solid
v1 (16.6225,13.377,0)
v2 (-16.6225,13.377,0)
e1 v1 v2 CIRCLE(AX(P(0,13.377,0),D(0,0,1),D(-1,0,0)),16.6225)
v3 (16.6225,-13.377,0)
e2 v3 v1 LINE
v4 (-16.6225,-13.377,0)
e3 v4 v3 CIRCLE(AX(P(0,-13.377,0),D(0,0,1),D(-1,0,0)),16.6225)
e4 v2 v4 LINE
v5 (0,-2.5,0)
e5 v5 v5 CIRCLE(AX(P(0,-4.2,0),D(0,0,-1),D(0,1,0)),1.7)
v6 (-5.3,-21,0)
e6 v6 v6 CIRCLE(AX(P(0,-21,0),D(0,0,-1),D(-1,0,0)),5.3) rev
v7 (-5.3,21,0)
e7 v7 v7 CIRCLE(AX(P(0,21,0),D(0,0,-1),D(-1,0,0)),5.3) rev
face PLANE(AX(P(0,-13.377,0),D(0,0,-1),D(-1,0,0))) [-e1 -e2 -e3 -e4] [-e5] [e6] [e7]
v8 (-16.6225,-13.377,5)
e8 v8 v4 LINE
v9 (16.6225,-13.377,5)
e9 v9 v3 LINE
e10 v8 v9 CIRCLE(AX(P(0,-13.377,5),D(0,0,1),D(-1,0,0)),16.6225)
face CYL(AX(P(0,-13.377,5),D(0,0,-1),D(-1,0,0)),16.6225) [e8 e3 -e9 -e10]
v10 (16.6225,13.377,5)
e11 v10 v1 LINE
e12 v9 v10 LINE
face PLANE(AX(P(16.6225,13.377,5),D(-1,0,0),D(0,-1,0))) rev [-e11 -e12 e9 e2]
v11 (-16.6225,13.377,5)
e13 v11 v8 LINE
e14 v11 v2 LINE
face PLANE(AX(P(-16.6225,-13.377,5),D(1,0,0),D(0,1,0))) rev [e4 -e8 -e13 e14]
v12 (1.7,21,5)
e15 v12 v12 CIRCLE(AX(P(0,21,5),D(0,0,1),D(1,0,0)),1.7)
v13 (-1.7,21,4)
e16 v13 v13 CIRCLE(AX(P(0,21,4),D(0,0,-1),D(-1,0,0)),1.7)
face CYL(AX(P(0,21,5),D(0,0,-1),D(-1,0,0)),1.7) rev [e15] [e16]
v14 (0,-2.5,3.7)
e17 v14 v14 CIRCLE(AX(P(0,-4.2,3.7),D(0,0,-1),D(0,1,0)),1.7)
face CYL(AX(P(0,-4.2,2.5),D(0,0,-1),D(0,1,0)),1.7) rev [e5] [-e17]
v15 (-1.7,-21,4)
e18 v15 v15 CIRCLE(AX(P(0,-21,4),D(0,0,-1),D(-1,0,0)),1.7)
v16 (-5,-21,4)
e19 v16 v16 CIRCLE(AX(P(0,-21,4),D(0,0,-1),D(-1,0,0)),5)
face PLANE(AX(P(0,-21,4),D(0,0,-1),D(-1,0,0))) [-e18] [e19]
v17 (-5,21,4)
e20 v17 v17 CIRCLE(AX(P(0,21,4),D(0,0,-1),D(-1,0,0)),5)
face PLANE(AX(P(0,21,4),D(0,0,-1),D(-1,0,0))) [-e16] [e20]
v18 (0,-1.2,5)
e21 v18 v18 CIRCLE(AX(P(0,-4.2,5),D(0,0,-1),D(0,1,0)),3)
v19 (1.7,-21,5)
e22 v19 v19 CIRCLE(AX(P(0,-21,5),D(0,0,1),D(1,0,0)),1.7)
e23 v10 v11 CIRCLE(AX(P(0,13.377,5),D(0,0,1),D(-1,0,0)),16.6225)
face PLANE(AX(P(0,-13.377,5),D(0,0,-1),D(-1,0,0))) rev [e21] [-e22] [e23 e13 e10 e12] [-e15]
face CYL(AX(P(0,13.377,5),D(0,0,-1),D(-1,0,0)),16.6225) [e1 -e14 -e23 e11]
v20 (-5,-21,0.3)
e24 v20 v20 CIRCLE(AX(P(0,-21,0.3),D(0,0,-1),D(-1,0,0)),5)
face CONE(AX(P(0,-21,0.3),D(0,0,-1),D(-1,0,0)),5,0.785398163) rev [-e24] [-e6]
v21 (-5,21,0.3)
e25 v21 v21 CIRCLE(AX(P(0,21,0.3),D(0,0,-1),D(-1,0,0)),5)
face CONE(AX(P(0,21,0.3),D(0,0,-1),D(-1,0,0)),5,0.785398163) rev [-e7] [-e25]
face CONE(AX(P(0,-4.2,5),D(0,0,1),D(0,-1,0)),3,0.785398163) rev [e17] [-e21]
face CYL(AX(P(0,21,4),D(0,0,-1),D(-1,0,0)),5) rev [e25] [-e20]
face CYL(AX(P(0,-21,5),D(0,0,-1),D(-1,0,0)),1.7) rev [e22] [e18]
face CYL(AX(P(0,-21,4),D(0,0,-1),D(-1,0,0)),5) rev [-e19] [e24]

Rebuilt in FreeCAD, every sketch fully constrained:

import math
import FreeCAD as App
import Part
import Sketcher
from FreeCAD import Vector
Q = App.Units.Quantity


def edges_at(feature, points):
    """Names of the edges that pass closest to the given points."""
    edges = feature.Shape.Edges
    near = lambda p: min(range(len(edges)), key=lambda i: edges[i].distToShape(Part.Vertex(*p))[0])
    return sorted({f"Edge{near(p) + 1}" for p in points})

doc = App.newDocument("Part")
body = doc.addObject("PartDesign::Body", "Body")

sketch1 = body.newObject("Sketcher::SketchObject", "Sketch")
sketch1.AttachmentSupport = (doc.getObject("XY_Plane"), [""])
sketch1.MapMode = "FlatFace"
sketch1.addGeometry([
    Part.LineSegment(Vector(-16.6, 13.4, 0), Vector(-16.6, -13.4, 0)),
    Part.ArcOfCircle(Part.Circle(Vector(0, -13.4, 0), Vector(0, 0, 1), 16.6), math.radians(180), math.radians(360)),
    Part.LineSegment(Vector(16.6, -13.4, 0), Vector(16.6, 13.4, 0)),
    Part.ArcOfCircle(Part.Circle(Vector(0, 13.4, 0), Vector(0, 0, 1), 16.6), math.radians(0), math.radians(180)),
    Part.Circle(Vector(0, -21, 0), Vector(0, 0, 1), 1.7),
    Part.Circle(Vector(0, 21, 0), Vector(0, 0, 1), 1.7),
], False)
sketch1.addConstraint([
    Sketcher.Constraint("Tangent", 0, 2, 1, 1),
    Sketcher.Constraint("Tangent", 1, 2, 2, 1),
    Sketcher.Constraint("Tangent", 2, 2, 3, 1),
    Sketcher.Constraint("Tangent", 3, 2, 0, 1),
    Sketcher.Constraint("Vertical", 0),
    Sketcher.Constraint("Vertical", 2),
    Sketcher.Constraint("Equal", 4, 5),
    Sketcher.Constraint("Symmetric", 1, 3, 3, 3, -1, 1),
    Sketcher.Constraint("Symmetric", 4, 3, 5, 3, -1, 1),
    Sketcher.Constraint("PointOnObject", 4, 3, -2),
    Sketcher.Constraint("Diameter", 4, Q("3.4 mm")),
    Sketcher.Constraint("DistanceY", 4, 3, -1, 1, Q("21 mm")),
    Sketcher.Constraint("Radius", 1, Q("16.6225 mm")),
    Sketcher.Constraint("DistanceY", 0, 2, 0, 1, Q("26.754 mm")),
])
pad1 = body.newObject("PartDesign::Pad", "Pad")
pad1.Profile = sketch1
pad1.Length = 5

sketch2 = body.newObject("Sketcher::SketchObject", "Sketch001")
sketch2.AttachmentSupport = (doc.getObject("YZ_Plane"), [""])
sketch2.MapMode = "FlatFace"
sketch2.addGeometry([
    Part.LineSegment(Vector(-4.2, 0, 0), Vector(-4.2, 5, 0)),
    Part.LineSegment(Vector(-4.2, 5, 0), Vector(-7.2, 5, 0)),
    Part.LineSegment(Vector(-7.2, 5, 0), Vector(-5.9, 3.7, 0)),
    Part.LineSegment(Vector(-5.9, 3.7, 0), Vector(-5.9, 0, 0)),
    Part.LineSegment(Vector(-5.9, 0, 0), Vector(-4.2, 0, 0)),
], False)
sketch2.addGeometry(Part.LineSegment(Vector(-4.2, 0, 0), Vector(-4.2, 5, 0)), True)
sketch2.addConstraint([
    Sketcher.Constraint("Coincident", 0, 2, 1, 1),
    Sketcher.Constraint("Coincident", 1, 2, 2, 1),
    Sketcher.Constraint("Coincident", 2, 2, 3, 1),
    Sketcher.Constraint("Coincident", 3, 2, 4, 1),
    Sketcher.Constraint("Coincident", 4, 2, 0, 1),
    Sketcher.Constraint("Vertical", 0),
    Sketcher.Constraint("Horizontal", 1),
    Sketcher.Constraint("Vertical", 3),
    Sketcher.Constraint("Horizontal", 4),
    Sketcher.Constraint("Vertical", 5),
    Sketcher.Constraint("Coincident", 5, 1, 4, 2),
    Sketcher.Constraint("PointOnObject", 3, 2, -1),
    Sketcher.Constraint("Horizontal", 1, 2, 5, 2),
    Sketcher.Constraint("DistanceX", 1, 2, 1, 1, Q("3 mm")),
    Sketcher.Constraint("DistanceY", 0, 1, 0, 2, Q("5 mm")),
    Sketcher.Constraint("Angle", 2, Q("-45 deg")),
    Sketcher.Constraint("DistanceX", 4, 1, 4, 2, Q("1.7 mm")),
    Sketcher.Constraint("DistanceX", 0, 2, -1, 1, Q("4.2 mm")),
])
groove = body.newObject("PartDesign::Groove", "Groove")
groove.Profile = sketch2
groove.ReferenceAxis = (sketch2, ["Axis0"])
groove.Angle = 360

sketch3 = body.newObject("Sketcher::SketchObject", "Sketch002")
sketch3.AttachmentSupport = (doc.getObject("XY_Plane"), [""])
sketch3.MapMode = "FlatFace"
sketch3.addGeometry([
    Part.Circle(Vector(0, 21, 0), Vector(0, 0, 1), 5),
    Part.Circle(Vector(0, -21, 0), Vector(0, 0, 1), 5),
], False)
sketch3.addConstraint([
    Sketcher.Constraint("Equal", 0, 1),
    Sketcher.Constraint("Symmetric", 0, 3, 1, 3, -1, 1),
    Sketcher.Constraint("PointOnObject", 0, 3, -2),
    Sketcher.Constraint("Diameter", 0, Q("10 mm")),
    Sketcher.Constraint("DistanceY", -1, 1, 0, 3, Q("21 mm")),
])
pocket1 = body.newObject("PartDesign::Pocket", "Pocket")
pocket1.Profile = sketch3
pocket1.Length = 4
pocket1.Reversed = True
doc.recompute()

chamfer = body.newObject("PartDesign::Chamfer", "Chamfer")
chamfer.Base = (pocket1, edges_at(pocket1, [(5, 21, 0), (5, -21, 0)]))
chamfer.Size = 0.3

doc.recompute()
